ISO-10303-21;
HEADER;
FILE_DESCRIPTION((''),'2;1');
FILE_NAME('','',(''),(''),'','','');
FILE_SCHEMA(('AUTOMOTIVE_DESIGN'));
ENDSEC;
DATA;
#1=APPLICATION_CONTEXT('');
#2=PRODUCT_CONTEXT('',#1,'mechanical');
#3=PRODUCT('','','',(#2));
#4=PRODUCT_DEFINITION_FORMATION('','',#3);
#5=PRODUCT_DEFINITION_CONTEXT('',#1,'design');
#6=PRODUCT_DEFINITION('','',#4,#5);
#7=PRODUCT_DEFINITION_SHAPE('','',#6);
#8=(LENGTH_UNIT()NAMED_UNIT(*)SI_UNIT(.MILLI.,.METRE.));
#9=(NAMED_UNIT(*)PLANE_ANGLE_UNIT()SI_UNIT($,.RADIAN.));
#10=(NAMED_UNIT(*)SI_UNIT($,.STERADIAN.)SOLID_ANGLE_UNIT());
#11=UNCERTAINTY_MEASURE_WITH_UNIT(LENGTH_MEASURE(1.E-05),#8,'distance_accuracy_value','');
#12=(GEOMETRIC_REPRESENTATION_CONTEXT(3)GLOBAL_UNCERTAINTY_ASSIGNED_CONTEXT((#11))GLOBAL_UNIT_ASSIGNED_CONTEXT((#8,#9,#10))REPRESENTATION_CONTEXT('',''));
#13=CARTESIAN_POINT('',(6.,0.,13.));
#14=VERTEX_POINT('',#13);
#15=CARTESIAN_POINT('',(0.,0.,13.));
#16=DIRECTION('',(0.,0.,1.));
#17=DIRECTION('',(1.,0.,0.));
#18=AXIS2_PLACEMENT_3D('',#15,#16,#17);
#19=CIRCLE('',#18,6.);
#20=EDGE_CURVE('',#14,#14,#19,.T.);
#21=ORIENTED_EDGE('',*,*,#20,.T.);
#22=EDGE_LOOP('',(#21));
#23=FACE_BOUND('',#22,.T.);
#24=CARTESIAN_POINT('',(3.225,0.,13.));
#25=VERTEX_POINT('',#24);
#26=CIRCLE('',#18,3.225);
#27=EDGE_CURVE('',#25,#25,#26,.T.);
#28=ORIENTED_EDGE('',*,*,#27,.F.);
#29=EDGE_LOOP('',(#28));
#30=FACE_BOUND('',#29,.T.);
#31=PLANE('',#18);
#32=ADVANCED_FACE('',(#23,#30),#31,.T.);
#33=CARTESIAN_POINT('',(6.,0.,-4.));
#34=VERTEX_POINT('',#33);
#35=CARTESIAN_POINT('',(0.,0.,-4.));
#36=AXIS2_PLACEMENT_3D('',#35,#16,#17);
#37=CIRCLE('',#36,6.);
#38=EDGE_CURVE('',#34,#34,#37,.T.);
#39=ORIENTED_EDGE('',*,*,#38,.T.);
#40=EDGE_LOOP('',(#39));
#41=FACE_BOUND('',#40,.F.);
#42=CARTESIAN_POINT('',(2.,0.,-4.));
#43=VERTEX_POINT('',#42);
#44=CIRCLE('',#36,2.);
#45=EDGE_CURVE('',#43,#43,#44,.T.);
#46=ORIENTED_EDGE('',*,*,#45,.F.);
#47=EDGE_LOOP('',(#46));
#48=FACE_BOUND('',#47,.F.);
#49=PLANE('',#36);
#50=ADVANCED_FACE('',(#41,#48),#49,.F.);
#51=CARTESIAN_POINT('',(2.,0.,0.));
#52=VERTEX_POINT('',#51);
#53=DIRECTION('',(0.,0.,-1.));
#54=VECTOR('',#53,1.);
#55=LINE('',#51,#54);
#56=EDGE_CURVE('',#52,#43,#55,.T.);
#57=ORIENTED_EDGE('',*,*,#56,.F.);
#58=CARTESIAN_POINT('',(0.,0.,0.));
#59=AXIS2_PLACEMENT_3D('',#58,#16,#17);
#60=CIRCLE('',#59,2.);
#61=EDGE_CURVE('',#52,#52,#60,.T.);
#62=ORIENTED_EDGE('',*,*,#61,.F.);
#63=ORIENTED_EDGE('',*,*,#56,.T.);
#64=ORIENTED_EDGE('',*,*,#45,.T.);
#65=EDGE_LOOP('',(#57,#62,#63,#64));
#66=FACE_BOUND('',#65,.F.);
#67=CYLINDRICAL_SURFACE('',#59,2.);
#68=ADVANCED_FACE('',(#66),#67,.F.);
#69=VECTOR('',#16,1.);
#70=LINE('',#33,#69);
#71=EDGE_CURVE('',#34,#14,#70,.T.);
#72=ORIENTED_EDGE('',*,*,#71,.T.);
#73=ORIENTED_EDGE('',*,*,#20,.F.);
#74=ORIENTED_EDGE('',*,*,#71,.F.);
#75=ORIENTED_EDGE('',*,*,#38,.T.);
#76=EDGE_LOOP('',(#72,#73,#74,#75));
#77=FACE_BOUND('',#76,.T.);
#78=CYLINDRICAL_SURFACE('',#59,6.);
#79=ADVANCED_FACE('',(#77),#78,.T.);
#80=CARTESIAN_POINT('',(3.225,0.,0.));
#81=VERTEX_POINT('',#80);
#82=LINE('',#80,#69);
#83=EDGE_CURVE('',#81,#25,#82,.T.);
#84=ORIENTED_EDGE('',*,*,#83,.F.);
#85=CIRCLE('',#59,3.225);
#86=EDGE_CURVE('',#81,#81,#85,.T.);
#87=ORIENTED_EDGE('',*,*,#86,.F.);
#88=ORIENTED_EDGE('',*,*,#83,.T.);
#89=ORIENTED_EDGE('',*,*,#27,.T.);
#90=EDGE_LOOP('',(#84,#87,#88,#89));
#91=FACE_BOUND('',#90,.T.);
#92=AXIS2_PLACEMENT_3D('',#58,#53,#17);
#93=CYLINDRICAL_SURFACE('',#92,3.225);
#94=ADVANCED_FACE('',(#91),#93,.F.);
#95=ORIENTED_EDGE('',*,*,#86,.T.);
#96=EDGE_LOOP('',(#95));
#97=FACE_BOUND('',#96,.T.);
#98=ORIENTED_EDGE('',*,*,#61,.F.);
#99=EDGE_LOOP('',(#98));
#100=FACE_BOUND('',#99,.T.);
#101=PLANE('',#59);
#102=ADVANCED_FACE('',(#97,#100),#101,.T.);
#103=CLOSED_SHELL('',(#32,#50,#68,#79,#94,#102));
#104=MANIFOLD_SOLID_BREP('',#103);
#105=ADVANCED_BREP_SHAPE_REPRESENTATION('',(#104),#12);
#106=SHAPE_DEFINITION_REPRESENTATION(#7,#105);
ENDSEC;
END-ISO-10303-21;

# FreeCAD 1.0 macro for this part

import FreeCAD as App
import Part
import Sketcher
from FreeCAD import Vector
Q = App.Units.Quantity

doc = App.newDocument("Part")
body = doc.addObject("PartDesign::Body", "Body")

sketch1 = body.newObject("Sketcher::SketchObject", "Sketch")
sketch1.AttachmentSupport = (doc.getObject("XY_Plane"), [""])
sketch1.MapMode = "FlatFace"
sketch1.addGeometry([
    Part.Circle(Vector(0, 0, 0), Vector(0, 0, 1), 6),
    Part.Circle(Vector(0, 0, 0), Vector(0, 0, 1), 3.2),
], False)
sketch1.addConstraint([
    Sketcher.Constraint("Coincident", 0, 3, -1, 1),
    Sketcher.Constraint("Coincident", 1, 3, -1, 1),
    Sketcher.Constraint("Diameter", 0, Q("12 mm")),
    Sketcher.Constraint("Diameter", 1, Q("6.45 mm")),
])
pad1 = body.newObject("PartDesign::Pad", "Pad")
pad1.Profile = sketch1
pad1.Length = 13

sketch2 = body.newObject("Sketcher::SketchObject", "Sketch001")
sketch2.AttachmentSupport = (doc.getObject("XY_Plane"), [""])
sketch2.MapMode = "FlatFace"
sketch2.addGeometry([
    Part.Circle(Vector(0, 0, 0), Vector(0, 0, 1), 6),
    Part.Circle(Vector(0, 0, 0), Vector(0, 0, 1), 2),
], False)
sketch2.addConstraint([
    Sketcher.Constraint("Coincident", 0, 3, -1, 1),
    Sketcher.Constraint("Coincident", 1, 3, -1, 1),
    Sketcher.Constraint("Diameter", 0, Q("12 mm")),
    Sketcher.Constraint("Diameter", 1, Q("4 mm")),
])
pad2 = body.newObject("PartDesign::Pad", "Pad001")
pad2.Profile = sketch2
pad2.Length = 4
pad2.Reversed = True

doc.recompute()
